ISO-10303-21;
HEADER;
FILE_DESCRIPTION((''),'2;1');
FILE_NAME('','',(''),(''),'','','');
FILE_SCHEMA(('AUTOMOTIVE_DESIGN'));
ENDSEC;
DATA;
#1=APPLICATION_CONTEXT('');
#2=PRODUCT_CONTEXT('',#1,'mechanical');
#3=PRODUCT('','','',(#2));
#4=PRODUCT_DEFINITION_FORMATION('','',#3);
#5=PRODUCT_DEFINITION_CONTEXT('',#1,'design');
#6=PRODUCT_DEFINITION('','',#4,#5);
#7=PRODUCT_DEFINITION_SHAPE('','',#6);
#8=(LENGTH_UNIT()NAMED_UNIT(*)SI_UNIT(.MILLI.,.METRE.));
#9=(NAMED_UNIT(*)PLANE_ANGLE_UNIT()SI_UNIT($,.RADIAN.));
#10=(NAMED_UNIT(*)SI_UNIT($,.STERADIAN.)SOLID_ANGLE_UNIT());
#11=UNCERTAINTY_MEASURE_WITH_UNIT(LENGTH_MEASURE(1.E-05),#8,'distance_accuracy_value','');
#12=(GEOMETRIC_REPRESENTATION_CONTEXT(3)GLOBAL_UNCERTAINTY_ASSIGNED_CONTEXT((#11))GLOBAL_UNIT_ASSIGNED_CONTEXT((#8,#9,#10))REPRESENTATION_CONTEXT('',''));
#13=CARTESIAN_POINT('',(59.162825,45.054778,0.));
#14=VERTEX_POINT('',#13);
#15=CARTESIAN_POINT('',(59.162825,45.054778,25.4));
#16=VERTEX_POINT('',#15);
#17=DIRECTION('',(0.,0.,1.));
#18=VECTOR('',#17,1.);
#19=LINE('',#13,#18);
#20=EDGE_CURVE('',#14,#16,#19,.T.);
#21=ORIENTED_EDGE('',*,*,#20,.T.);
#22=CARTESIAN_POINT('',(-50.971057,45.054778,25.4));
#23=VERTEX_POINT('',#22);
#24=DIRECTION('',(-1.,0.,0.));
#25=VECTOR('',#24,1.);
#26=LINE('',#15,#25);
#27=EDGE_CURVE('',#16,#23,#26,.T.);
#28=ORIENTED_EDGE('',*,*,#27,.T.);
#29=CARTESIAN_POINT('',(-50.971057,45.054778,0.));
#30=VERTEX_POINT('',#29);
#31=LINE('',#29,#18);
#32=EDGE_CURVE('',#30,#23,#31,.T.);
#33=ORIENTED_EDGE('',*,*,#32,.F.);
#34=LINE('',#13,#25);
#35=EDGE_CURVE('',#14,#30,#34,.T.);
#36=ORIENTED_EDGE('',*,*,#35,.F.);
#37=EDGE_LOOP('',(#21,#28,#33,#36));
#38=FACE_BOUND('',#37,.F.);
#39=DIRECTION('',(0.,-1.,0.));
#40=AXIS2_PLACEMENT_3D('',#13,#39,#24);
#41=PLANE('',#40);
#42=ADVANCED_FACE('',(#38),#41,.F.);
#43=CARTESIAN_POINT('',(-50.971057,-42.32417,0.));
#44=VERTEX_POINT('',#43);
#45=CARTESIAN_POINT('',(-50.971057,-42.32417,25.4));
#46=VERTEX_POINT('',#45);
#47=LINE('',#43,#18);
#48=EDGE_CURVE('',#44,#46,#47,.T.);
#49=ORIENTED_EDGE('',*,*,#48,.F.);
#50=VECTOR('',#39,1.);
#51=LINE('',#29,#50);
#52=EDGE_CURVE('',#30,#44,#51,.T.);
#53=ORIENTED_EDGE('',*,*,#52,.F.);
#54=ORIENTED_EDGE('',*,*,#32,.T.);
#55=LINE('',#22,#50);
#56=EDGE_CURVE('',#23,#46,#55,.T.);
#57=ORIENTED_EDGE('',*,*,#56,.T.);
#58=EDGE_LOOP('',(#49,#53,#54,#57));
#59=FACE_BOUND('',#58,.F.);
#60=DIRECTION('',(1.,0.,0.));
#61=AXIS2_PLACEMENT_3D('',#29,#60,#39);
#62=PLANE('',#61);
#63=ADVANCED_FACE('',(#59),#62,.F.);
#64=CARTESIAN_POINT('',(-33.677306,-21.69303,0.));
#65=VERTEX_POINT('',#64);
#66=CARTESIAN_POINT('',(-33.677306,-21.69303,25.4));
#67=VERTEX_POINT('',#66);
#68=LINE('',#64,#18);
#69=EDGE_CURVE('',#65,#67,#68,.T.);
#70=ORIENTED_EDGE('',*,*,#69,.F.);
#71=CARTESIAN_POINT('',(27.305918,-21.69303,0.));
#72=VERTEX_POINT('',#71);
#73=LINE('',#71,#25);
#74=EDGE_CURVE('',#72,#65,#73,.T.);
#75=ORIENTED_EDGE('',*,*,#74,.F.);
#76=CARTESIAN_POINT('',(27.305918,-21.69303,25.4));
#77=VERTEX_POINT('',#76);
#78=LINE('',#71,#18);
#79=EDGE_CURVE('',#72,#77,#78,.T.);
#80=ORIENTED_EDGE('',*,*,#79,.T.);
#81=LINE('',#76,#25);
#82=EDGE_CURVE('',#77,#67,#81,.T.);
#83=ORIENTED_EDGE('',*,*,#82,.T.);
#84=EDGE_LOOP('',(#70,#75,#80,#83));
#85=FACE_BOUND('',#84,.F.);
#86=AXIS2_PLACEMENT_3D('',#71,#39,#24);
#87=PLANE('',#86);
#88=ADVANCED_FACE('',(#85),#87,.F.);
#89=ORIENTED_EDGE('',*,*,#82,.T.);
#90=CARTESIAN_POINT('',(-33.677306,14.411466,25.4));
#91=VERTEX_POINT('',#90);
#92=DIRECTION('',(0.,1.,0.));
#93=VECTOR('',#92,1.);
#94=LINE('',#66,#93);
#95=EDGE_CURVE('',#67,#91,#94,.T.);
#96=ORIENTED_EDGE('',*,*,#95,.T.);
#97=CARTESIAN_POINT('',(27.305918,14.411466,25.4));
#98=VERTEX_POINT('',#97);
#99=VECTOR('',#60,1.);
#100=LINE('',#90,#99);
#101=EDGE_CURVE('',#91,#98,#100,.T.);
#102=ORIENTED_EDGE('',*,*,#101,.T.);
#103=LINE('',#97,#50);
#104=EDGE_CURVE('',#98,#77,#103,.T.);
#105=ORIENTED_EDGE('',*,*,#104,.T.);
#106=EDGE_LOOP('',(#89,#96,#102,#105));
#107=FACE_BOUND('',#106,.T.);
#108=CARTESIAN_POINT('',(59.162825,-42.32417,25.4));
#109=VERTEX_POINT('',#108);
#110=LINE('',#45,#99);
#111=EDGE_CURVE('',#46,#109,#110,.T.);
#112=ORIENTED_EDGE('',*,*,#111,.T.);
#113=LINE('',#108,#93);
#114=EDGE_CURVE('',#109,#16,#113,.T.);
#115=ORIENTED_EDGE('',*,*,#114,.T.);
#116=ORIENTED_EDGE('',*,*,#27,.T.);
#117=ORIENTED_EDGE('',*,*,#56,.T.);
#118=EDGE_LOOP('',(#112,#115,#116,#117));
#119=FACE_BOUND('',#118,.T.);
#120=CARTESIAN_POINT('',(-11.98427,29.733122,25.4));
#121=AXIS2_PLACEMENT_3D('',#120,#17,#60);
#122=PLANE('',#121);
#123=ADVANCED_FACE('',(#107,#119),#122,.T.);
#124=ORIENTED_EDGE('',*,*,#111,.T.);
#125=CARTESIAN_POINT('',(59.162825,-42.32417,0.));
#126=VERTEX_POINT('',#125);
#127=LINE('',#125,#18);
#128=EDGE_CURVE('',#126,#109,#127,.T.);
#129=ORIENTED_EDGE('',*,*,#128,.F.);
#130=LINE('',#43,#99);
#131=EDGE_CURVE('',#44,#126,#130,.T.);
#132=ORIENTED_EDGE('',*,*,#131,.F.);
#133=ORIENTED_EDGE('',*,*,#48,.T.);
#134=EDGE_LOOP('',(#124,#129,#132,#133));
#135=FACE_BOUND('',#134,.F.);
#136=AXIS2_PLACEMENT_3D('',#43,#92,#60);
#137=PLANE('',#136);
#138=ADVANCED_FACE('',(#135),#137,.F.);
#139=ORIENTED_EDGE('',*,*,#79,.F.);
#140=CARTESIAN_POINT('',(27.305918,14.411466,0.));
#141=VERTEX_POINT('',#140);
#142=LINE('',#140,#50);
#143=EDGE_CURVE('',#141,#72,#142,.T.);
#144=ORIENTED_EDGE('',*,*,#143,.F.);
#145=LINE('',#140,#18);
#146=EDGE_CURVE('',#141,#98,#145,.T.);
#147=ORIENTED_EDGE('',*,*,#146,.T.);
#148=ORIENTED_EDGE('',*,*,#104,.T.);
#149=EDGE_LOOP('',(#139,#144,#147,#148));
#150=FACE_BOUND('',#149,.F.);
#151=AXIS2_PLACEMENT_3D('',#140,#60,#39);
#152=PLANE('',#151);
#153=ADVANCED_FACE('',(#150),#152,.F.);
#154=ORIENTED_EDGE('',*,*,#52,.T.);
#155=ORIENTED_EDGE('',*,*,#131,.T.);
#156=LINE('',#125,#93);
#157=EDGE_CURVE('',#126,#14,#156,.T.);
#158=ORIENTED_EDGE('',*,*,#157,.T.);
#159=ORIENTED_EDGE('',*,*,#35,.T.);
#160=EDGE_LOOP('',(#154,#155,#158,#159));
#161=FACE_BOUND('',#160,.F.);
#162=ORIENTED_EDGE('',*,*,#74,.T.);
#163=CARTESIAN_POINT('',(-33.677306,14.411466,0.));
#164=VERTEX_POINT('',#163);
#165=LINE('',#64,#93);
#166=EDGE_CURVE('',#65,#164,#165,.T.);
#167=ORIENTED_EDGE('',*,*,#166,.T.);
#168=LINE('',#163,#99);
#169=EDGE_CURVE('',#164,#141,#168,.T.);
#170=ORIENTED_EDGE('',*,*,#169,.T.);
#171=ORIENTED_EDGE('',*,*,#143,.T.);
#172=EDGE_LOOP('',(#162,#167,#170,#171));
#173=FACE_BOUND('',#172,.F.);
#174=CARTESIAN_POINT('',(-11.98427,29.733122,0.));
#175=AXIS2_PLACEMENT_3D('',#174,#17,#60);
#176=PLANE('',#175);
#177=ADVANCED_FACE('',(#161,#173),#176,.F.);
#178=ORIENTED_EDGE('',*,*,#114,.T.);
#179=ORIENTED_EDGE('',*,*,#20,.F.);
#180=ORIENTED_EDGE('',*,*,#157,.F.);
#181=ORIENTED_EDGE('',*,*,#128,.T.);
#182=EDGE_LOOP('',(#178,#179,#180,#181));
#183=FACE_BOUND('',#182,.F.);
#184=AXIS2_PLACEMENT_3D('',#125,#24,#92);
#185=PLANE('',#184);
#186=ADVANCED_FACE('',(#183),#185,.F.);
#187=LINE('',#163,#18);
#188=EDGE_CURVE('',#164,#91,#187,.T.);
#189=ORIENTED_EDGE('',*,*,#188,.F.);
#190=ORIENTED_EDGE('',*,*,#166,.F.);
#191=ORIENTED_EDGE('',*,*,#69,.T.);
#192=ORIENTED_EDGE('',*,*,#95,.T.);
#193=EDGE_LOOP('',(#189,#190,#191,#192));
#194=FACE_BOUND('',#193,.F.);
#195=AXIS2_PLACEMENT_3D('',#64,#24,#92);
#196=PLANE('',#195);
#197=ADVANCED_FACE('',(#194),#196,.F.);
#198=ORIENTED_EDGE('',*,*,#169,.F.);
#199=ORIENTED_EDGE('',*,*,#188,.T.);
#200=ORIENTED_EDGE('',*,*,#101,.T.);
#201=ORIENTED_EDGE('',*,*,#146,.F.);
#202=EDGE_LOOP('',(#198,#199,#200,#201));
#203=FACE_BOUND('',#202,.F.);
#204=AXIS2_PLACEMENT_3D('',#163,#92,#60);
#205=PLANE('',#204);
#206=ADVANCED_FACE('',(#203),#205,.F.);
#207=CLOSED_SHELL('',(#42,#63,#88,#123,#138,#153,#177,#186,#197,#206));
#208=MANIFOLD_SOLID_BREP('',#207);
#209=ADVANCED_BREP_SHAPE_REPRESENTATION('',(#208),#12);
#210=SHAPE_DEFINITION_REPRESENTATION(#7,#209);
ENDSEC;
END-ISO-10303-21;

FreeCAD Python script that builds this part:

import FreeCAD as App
import Part
import Sketcher
from FreeCAD import Vector
Q = App.Units.Quantity

doc = App.newDocument("Part")
body = doc.addObject("PartDesign::Body", "Body")

# Sketch on XY plane
sketch1 = doc.addObject("Sketcher::SketchObject", "Sketch")
body.addObject(sketch1)
sketch1.AttachmentSupport = (doc.XY_Plane, [""])
sketch1.MapMode = "FlatFace"
sketch1.addGeometry([
    Part.LineSegment(Vector(-51, 45, 0), Vector(-51, -42, 0)),  # 0
    Part.LineSegment(Vector(-51, -42, 0), Vector(59, -42, 0)),  # 1
    Part.LineSegment(Vector(59, -42, 0), Vector(59, 45, 0)),  # 2
    Part.LineSegment(Vector(59, 45, 0), Vector(-51, 45, 0)),  # 3
    Part.LineSegment(Vector(-34, 14, 0), Vector(27, 14, 0)),  # 4
    Part.LineSegment(Vector(27, 14, 0), Vector(27, -22, 0)),  # 5
    Part.LineSegment(Vector(27, -22, 0), Vector(-34, -22, 0)),  # 6
    Part.LineSegment(Vector(-34, -22, 0), Vector(-34, 14, 0)),  # 7
], False)
sketch1.addConstraint([
    Sketcher.Constraint("Coincident", 0, 2, 1, 1),
    Sketcher.Constraint("Coincident", 1, 2, 2, 1),
    Sketcher.Constraint("Coincident", 2, 2, 3, 1),
    Sketcher.Constraint("Coincident", 3, 2, 0, 1),
    Sketcher.Constraint("Coincident", 4, 2, 5, 1),
    Sketcher.Constraint("Coincident", 5, 2, 6, 1),
    Sketcher.Constraint("Coincident", 6, 2, 7, 1),
    Sketcher.Constraint("Coincident", 7, 2, 4, 1),
    Sketcher.Constraint("Vertical", 0),
    Sketcher.Constraint("Horizontal", 1),
    Sketcher.Constraint("Vertical", 2),
    Sketcher.Constraint("Horizontal", 3),
    Sketcher.Constraint("Horizontal", 4),
    Sketcher.Constraint("Vertical", 5),
    Sketcher.Constraint("Horizontal", 6),
    Sketcher.Constraint("Vertical", 7),
    Sketcher.Constraint("DistanceX", 1, 1, 1, 2, Q("110.133882 mm")),
    Sketcher.Constraint("DistanceY", 0, 2, 0, 1, Q("87.378948 mm")),
    Sketcher.Constraint("DistanceX", 4, 1, 4, 2, Q("60.983224 mm")),
    Sketcher.Constraint("DistanceY", 5, 2, 5, 1, Q("36.104496 mm")),
    Sketcher.Constraint("DistanceY", 0, 2, -1, 1, Q("42.32417 mm")),
    Sketcher.Constraint("DistanceY", 5, 2, -1, 1, Q("21.69303 mm")),
    Sketcher.Constraint("DistanceX", 0, 2, 6, 2, Q("17.293751 mm")),
    Sketcher.Constraint("DistanceX", 0, 2, -1, 1, Q("50.971057 mm")),
])
pad1 = doc.addObject("PartDesign::Pad", "Pad")
body.addObject(pad1)
pad1.Profile = sketch1
pad1.Length = Q("1 in")

# Sketch on XY plane
sketch2 = doc.addObject("Sketcher::SketchObject", "Sketch001")
body.addObject(sketch2)
sketch2.AttachmentSupport = (doc.XY_Plane, [""])
sketch2.MapMode = "FlatFace"
sketch2.addGeometry([
    Part.LineSegment(Vector(-51, 45, 0), Vector(-51, -42, 0)),  # 0
    Part.LineSegment(Vector(-51, -42, 0), Vector(59, -42, 0)),  # 1
    Part.LineSegment(Vector(59, -42, 0), Vector(59, 45, 0)),  # 2
    Part.LineSegment(Vector(59, 45, 0), Vector(-51, 45, 0)),  # 3
    Part.LineSegment(Vector(-34, 14, 0), Vector(27, 14, 0)),  # 4
    Part.LineSegment(Vector(27, 14, 0), Vector(27, -22, 0)),  # 5
    Part.LineSegment(Vector(27, -22, 0), Vector(-34, -22, 0)),  # 6
    Part.LineSegment(Vector(-34, -22, 0), Vector(-34, 14, 0)),  # 7
], False)
sketch2.addConstraint([
    Sketcher.Constraint("Coincident", 0, 2, 1, 1),
    Sketcher.Constraint("Coincident", 1, 2, 2, 1),
    Sketcher.Constraint("Coincident", 2, 2, 3, 1),
    Sketcher.Constraint("Coincident", 3, 2, 0, 1),
    Sketcher.Constraint("Coincident", 4, 2, 5, 1),
    Sketcher.Constraint("Coincident", 5, 2, 6, 1),
    Sketcher.Constraint("Coincident", 6, 2, 7, 1),
    Sketcher.Constraint("Coincident", 7, 2, 4, 1),
    Sketcher.Constraint("Vertical", 0),
    Sketcher.Constraint("Horizontal", 1),
    Sketcher.Constraint("Vertical", 2),
    Sketcher.Constraint("Horizontal", 3),
    Sketcher.Constraint("Horizontal", 4),
    Sketcher.Constraint("Vertical", 5),
    Sketcher.Constraint("Horizontal", 6),
    Sketcher.Constraint("Vertical", 7),
    Sketcher.Constraint("DistanceX", 1, 1, 1, 2, Q("110.133882 mm")),
    Sketcher.Constraint("DistanceY", 0, 2, 0, 1, Q("87.378948 mm")),
    Sketcher.Constraint("DistanceX", 4, 1, 4, 2, Q("60.983224 mm")),
    Sketcher.Constraint("DistanceY", 5, 2, 5, 1, Q("36.104496 mm")),
    Sketcher.Constraint("DistanceY", 0, 2, -1, 1, Q("42.32417 mm")),
    Sketcher.Constraint("DistanceY", 5, 2, -1, 1, Q("21.69303 mm")),
    Sketcher.Constraint("DistanceX", 0, 2, 6, 2, Q("17.293751 mm")),
    Sketcher.Constraint("DistanceX", 0, 2, -1, 1, Q("50.971057 mm")),
])
pad2 = doc.addObject("PartDesign::Pad", "Pad001")
body.addObject(pad2)
pad2.Profile = sketch2
pad2.Length = Q("1 in")

doc.recompute()
